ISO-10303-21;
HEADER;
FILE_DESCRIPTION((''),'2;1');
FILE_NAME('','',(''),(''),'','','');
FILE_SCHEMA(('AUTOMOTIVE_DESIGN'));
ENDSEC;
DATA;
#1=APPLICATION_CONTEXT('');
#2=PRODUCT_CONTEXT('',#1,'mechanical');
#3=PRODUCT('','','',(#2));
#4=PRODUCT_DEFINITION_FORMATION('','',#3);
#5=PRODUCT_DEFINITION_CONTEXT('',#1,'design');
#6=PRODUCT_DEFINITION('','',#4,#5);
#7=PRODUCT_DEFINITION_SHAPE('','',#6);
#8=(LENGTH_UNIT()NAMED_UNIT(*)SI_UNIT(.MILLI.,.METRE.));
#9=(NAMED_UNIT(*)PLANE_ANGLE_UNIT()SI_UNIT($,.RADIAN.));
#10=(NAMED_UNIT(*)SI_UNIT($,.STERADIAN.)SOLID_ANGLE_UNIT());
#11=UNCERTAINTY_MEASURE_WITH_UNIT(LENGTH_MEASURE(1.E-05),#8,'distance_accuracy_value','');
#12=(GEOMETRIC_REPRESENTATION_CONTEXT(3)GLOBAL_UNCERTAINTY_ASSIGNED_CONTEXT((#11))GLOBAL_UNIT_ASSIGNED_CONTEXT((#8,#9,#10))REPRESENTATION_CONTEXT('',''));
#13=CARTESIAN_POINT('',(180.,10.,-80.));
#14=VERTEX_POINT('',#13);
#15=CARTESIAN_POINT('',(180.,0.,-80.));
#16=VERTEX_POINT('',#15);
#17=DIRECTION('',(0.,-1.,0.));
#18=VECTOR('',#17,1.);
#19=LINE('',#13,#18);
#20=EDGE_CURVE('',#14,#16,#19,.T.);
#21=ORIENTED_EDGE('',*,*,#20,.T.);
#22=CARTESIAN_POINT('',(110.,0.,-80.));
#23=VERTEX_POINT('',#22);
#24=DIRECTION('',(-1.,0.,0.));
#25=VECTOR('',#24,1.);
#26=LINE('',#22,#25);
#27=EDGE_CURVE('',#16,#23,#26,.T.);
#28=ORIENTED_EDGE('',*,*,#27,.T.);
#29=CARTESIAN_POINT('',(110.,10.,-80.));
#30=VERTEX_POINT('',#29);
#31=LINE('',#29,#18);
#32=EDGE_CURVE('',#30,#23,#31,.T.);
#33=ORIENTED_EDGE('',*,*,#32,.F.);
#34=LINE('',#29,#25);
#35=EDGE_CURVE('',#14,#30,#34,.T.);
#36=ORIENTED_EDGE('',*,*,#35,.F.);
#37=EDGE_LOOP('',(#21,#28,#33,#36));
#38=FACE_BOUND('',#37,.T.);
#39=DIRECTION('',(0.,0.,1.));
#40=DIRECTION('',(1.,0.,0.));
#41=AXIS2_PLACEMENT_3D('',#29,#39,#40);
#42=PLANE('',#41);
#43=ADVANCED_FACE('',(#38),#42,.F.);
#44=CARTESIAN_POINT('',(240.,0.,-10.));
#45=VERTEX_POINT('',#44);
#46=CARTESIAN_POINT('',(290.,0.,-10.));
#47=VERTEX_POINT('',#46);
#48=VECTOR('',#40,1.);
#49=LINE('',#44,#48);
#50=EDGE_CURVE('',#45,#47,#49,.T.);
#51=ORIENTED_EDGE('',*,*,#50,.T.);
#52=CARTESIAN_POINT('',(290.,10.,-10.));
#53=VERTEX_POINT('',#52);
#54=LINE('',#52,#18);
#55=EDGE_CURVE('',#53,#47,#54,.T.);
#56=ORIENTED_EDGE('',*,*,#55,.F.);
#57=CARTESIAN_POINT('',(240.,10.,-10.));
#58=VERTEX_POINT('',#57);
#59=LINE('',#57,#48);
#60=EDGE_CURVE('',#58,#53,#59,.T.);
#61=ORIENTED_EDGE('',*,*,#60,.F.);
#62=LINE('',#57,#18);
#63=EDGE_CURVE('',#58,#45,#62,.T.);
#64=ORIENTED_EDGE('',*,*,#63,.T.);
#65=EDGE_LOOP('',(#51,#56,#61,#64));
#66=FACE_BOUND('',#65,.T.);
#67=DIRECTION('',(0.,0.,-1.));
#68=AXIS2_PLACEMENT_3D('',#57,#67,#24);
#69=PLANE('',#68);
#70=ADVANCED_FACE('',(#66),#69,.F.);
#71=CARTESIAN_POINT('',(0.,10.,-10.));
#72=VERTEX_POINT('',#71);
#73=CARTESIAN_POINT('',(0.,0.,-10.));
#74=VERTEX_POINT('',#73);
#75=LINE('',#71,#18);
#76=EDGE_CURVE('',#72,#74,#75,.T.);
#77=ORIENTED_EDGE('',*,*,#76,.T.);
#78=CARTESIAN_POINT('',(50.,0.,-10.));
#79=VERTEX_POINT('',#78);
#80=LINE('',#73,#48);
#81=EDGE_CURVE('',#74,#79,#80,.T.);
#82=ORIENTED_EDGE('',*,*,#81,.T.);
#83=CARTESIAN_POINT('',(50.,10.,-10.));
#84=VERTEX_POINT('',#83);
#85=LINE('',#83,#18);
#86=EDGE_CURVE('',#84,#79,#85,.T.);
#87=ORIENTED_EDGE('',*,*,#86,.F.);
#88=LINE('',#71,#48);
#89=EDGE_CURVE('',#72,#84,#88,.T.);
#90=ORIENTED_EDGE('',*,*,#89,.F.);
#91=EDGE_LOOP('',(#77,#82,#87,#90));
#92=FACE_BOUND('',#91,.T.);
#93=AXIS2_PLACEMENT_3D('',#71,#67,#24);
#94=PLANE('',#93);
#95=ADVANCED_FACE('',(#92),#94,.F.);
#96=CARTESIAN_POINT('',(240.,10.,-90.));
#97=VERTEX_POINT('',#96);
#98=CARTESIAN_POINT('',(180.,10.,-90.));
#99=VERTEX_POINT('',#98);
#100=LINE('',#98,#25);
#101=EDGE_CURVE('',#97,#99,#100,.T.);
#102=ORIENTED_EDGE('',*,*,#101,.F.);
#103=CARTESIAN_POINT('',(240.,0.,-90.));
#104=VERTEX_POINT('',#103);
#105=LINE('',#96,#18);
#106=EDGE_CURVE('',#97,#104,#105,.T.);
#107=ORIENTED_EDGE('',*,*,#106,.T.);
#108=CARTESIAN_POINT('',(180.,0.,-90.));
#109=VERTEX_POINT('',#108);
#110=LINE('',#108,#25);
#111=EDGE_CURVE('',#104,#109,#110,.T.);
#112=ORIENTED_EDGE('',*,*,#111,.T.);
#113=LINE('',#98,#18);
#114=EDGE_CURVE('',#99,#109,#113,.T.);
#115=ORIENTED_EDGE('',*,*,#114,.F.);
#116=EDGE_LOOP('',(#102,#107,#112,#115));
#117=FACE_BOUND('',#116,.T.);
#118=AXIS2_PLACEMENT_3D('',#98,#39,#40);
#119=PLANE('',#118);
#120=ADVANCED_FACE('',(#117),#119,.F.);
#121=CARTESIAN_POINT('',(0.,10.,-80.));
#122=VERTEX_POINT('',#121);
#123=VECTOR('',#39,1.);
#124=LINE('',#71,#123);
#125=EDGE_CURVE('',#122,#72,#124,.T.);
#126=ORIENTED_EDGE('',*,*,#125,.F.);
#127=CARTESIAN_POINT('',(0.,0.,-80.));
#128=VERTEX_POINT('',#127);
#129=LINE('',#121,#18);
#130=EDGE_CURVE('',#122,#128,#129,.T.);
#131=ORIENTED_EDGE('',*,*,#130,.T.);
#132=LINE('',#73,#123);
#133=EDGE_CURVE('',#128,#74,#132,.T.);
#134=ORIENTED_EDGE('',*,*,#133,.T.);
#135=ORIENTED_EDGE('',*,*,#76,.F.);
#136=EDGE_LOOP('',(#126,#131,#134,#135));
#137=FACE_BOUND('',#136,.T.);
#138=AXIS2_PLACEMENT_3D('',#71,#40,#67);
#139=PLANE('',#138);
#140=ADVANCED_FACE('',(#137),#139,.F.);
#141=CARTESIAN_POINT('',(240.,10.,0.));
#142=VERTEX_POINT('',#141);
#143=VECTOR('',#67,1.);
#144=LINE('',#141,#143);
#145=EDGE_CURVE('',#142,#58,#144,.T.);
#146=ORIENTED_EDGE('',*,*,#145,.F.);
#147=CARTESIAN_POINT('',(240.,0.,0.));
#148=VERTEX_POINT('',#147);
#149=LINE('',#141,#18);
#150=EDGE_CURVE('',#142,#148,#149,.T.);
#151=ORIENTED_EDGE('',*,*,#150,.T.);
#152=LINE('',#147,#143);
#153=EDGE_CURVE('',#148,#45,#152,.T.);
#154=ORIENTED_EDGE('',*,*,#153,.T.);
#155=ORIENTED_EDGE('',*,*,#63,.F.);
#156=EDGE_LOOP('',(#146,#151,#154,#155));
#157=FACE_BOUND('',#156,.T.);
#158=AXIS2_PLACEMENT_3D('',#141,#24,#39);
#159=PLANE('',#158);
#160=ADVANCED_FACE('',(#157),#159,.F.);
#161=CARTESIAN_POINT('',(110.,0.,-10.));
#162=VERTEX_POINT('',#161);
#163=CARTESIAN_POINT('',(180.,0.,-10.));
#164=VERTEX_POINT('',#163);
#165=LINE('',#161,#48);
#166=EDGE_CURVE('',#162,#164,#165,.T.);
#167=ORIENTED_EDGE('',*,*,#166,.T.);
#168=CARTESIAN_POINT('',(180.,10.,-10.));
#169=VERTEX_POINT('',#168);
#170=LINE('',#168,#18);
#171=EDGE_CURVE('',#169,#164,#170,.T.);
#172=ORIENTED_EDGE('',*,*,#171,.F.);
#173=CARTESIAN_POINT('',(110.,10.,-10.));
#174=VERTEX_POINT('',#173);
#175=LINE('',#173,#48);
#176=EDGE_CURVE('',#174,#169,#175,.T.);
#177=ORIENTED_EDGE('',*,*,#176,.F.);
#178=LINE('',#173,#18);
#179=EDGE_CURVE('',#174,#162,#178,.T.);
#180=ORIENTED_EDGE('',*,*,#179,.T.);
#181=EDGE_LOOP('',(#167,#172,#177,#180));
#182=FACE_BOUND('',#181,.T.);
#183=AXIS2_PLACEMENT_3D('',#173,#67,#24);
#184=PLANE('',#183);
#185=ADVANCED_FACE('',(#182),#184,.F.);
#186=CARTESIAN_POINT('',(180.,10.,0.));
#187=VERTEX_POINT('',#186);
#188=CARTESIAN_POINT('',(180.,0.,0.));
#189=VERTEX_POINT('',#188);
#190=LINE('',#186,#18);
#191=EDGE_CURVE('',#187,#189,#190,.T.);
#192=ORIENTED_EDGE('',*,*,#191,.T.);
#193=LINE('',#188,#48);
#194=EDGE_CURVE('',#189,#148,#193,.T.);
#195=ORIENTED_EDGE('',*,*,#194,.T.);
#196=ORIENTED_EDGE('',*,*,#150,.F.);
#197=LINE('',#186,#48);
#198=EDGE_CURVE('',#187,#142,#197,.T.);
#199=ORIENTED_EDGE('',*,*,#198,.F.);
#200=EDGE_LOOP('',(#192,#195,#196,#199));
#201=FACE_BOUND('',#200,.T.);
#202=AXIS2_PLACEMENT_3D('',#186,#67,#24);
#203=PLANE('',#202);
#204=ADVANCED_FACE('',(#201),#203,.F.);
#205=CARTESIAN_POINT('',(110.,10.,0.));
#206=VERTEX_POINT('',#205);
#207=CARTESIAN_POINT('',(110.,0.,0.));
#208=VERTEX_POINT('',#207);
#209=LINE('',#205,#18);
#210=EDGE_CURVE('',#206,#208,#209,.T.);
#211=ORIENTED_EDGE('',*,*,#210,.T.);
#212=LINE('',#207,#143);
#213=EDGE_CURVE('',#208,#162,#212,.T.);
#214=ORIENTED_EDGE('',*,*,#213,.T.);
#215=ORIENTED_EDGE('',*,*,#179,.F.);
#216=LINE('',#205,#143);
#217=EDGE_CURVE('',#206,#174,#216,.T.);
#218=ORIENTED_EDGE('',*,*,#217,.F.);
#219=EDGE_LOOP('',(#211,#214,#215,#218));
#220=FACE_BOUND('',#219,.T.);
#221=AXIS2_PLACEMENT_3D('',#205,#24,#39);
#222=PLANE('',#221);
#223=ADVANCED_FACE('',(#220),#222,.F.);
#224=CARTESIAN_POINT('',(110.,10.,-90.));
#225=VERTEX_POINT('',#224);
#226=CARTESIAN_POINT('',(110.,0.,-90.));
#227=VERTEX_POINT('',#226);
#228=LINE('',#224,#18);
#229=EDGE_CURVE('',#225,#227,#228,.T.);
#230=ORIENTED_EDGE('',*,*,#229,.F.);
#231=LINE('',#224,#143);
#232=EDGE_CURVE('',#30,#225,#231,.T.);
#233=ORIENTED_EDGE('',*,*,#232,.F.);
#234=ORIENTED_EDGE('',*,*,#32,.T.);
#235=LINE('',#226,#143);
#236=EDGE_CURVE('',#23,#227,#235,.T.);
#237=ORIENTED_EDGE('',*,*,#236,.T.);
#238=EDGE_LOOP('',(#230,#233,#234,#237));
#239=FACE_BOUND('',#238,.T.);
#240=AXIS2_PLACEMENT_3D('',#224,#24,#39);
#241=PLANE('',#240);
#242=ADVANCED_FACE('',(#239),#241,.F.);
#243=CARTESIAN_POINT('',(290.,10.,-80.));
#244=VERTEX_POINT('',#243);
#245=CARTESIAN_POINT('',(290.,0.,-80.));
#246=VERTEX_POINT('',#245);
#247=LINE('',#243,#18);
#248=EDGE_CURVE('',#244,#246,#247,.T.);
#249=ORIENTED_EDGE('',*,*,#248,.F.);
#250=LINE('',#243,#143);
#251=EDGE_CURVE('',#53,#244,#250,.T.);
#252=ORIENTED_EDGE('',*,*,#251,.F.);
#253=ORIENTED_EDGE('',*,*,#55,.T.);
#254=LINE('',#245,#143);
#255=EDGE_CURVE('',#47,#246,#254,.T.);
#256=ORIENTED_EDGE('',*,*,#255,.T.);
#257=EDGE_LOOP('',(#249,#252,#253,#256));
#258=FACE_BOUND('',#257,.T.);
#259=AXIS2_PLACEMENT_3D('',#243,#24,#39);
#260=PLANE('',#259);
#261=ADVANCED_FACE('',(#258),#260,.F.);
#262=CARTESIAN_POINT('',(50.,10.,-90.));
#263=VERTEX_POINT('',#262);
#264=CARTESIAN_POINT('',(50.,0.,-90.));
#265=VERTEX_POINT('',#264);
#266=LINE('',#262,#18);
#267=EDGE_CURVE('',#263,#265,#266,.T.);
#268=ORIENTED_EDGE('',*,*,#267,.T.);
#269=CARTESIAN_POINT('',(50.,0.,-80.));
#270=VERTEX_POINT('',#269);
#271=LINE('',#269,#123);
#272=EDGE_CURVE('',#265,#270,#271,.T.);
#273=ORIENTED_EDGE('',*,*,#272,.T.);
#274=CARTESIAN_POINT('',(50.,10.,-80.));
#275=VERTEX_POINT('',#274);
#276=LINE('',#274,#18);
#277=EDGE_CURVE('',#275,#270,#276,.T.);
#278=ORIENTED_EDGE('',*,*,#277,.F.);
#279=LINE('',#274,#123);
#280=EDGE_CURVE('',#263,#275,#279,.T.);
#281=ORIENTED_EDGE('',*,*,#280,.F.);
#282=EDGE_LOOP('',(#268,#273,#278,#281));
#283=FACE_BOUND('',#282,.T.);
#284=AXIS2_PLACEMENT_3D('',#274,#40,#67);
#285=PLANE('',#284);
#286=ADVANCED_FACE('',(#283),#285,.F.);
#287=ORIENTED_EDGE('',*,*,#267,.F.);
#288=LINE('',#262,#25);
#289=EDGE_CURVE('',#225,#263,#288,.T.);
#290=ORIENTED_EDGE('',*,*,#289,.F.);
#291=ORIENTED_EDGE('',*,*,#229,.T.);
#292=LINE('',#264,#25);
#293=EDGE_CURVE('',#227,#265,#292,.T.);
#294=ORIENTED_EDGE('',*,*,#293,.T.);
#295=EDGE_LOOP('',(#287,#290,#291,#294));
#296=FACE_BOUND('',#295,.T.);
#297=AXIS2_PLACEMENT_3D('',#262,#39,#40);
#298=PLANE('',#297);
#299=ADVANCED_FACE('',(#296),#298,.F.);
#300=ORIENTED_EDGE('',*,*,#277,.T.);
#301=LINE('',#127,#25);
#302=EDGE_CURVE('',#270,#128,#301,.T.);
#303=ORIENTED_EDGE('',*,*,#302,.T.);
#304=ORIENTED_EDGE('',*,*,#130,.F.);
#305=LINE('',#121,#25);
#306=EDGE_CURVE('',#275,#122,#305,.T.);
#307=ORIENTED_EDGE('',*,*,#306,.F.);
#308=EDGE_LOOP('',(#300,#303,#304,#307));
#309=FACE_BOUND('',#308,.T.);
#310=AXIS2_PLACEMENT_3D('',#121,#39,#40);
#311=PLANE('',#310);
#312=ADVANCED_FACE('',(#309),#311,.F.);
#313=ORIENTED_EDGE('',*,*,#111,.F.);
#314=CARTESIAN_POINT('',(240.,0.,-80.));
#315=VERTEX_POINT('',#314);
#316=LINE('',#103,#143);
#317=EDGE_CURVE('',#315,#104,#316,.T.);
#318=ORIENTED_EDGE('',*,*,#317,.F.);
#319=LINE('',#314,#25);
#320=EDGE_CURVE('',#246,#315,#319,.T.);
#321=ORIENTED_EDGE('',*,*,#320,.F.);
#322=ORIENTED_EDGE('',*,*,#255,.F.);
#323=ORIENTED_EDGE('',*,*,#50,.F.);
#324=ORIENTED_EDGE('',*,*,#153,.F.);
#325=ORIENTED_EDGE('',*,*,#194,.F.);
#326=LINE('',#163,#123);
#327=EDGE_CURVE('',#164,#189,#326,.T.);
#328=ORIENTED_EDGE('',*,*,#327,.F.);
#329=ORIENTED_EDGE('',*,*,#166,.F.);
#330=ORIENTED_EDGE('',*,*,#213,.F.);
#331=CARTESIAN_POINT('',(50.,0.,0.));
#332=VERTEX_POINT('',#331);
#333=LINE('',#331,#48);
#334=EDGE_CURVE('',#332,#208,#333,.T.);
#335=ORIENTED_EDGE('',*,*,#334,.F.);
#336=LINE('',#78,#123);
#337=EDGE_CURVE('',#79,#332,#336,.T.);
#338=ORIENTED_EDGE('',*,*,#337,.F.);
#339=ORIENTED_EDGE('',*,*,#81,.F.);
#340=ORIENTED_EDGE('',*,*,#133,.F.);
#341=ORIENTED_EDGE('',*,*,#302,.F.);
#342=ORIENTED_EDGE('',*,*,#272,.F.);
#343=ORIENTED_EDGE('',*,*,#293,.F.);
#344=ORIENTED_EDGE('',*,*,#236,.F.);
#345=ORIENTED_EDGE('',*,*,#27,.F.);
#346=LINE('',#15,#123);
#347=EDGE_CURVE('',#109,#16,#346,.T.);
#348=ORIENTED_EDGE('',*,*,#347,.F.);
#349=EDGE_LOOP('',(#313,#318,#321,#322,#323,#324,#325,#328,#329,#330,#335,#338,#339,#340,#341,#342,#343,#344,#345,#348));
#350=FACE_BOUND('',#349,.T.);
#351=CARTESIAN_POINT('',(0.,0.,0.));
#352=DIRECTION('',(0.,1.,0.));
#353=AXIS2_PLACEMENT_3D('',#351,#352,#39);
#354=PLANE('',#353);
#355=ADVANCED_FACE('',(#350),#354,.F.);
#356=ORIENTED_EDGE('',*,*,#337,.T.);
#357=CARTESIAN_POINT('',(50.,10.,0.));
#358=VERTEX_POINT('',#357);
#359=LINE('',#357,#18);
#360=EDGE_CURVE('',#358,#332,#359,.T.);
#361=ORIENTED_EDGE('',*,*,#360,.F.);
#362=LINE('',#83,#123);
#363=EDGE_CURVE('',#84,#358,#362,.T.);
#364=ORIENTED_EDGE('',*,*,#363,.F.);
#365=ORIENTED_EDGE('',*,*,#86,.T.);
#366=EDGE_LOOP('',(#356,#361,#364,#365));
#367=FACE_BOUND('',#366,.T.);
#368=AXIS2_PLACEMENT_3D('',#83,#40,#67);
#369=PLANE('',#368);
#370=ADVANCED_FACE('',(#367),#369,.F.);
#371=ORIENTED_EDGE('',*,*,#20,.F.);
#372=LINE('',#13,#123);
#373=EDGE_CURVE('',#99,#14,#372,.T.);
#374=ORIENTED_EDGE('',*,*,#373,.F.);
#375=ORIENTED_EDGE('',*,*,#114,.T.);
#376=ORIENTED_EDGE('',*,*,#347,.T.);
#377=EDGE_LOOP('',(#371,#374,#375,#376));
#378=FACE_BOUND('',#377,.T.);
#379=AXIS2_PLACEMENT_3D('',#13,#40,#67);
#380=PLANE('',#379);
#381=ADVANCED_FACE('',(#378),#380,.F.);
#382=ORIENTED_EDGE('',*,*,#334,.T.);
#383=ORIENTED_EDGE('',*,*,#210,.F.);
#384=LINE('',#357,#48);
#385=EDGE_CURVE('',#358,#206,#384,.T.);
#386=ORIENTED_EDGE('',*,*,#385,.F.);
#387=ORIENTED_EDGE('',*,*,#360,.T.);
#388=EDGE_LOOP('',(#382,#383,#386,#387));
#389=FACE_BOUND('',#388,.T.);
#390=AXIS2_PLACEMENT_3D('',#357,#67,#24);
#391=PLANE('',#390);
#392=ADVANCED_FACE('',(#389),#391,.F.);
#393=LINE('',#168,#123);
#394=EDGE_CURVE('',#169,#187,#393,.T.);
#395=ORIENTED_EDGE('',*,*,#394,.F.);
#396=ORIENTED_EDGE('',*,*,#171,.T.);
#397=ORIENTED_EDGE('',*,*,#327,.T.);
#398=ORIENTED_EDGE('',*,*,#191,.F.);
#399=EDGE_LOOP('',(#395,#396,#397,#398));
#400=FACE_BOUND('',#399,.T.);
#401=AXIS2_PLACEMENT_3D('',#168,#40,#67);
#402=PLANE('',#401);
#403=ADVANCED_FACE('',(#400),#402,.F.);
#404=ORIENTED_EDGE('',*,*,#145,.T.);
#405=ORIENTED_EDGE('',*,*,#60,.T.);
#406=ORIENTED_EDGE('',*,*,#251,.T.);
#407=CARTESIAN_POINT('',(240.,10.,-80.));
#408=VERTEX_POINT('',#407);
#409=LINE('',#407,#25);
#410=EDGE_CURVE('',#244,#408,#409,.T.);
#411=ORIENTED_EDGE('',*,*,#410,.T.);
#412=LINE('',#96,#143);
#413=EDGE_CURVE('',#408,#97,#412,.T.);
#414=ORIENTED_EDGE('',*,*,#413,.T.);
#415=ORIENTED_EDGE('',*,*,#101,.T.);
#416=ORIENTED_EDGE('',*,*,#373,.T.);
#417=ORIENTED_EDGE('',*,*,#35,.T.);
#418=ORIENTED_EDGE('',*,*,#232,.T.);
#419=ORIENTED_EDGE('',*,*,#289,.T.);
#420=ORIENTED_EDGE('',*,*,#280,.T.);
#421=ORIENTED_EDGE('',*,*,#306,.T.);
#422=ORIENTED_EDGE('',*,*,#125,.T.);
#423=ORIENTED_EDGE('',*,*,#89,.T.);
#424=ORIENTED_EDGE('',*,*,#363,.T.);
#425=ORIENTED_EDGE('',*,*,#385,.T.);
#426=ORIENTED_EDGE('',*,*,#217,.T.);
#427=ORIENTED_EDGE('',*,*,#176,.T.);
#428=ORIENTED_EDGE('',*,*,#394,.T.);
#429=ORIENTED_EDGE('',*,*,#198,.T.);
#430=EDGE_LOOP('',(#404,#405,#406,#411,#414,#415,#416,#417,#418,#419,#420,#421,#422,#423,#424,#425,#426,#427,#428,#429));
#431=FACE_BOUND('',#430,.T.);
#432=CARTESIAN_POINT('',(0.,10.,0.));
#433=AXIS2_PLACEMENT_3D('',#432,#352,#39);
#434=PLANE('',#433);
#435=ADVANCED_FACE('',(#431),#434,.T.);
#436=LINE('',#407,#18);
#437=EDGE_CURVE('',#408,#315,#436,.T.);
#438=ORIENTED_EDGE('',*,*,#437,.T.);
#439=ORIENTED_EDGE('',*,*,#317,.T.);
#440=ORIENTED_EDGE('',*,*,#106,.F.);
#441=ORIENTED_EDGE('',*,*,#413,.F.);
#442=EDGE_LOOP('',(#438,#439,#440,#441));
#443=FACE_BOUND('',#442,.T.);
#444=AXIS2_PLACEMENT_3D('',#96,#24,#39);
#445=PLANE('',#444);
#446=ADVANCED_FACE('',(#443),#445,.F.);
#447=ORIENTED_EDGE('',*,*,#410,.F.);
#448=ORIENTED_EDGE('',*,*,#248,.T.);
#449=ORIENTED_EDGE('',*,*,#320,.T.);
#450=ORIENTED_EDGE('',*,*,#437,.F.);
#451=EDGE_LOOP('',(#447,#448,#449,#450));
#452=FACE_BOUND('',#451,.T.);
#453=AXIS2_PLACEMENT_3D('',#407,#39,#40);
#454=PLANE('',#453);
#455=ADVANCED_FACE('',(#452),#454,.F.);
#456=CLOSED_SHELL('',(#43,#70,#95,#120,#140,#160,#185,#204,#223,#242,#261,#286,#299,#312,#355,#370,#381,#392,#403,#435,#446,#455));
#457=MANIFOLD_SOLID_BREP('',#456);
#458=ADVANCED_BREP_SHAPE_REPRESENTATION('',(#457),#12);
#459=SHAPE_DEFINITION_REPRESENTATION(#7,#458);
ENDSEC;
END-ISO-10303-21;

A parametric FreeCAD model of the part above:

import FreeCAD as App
import Part
import Sketcher

V = App.Vector
Q = App.Units.Quantity

doc = App.newDocument("Part")
body = doc.addObject("PartDesign::Body", "Body")

# Sketch on XZ plane
sketch1 = body.newObject("Sketcher::SketchObject", "Sketch")
sketch1.AttachmentSupport = (doc.getObject("XZ_Plane"), [""])
sketch1.MapMode = "FlatFace"
sketch1.addGeometry(Part.LineSegment(V(0, -10, 0), V(50, -10, 0)), False)
sketch1.addGeometry(Part.LineSegment(V(50, -10, 0), V(50, 0, 0)), False)
sketch1.addGeometry(Part.LineSegment(V(50, 0, 0), V(110, 0, 0)), False)
sketch1.addGeometry(Part.LineSegment(V(110, 0, 0), V(110, -10, 0)), False)
sketch1.addGeometry(Part.LineSegment(V(110, -10, 0), V(180, -10, 0)), False)
sketch1.addGeometry(Part.LineSegment(V(180, -10, 0), V(180, 0, 0)), False)
sketch1.addGeometry(Part.LineSegment(V(180, 0, 0), V(240, 0, 0)), False)
sketch1.addGeometry(Part.LineSegment(V(240, 0, 0), V(240, -10, 0)), False)
sketch1.addGeometry(Part.LineSegment(V(240, -10, 0), V(290, -10, 0)), False)
sketch1.addGeometry(Part.LineSegment(V(290, -10, 0), V(290, -80, 0)), False)
sketch1.addGeometry(Part.LineSegment(V(290, -80, 0), V(240, -80, 0)), False)
sketch1.addGeometry(Part.LineSegment(V(240, -80, 0), V(240, -90, 0)), False)
sketch1.addGeometry(Part.LineSegment(V(240, -90, 0), V(180, -90, 0)), False)
sketch1.addGeometry(Part.LineSegment(V(180, -90, 0), V(180, -80, 0)), False)
sketch1.addGeometry(Part.LineSegment(V(180, -80, 0), V(110, -80, 0)), False)
sketch1.addGeometry(Part.LineSegment(V(110, -80, 0), V(110, -90, 0)), False)
sketch1.addGeometry(Part.LineSegment(V(110, -90, 0), V(50, -90, 0)), False)
sketch1.addGeometry(Part.LineSegment(V(50, -90, 0), V(50, -80, 0)), False)
sketch1.addGeometry(Part.LineSegment(V(50, -80, 0), V(0, -80, 0)), False)
sketch1.addGeometry(Part.LineSegment(V(0, -80, 0), V(0, -10, 0)), False)
sketch1.addConstraint(Sketcher.Constraint("Coincident", 0, 2, 1, 1))
sketch1.addConstraint(Sketcher.Constraint("Coincident", 1, 2, 2, 1))
sketch1.addConstraint(Sketcher.Constraint("Coincident", 2, 2, 3, 1))
sketch1.addConstraint(Sketcher.Constraint("Coincident", 3, 2, 4, 1))
sketch1.addConstraint(Sketcher.Constraint("Coincident", 4, 2, 5, 1))
sketch1.addConstraint(Sketcher.Constraint("Coincident", 5, 2, 6, 1))
sketch1.addConstraint(Sketcher.Constraint("Coincident", 6, 2, 7, 1))
sketch1.addConstraint(Sketcher.Constraint("Coincident", 7, 2, 8, 1))
sketch1.addConstraint(Sketcher.Constraint("Coincident", 8, 2, 9, 1))
sketch1.addConstraint(Sketcher.Constraint("Coincident", 9, 2, 10, 1))
sketch1.addConstraint(Sketcher.Constraint("Coincident", 10, 2, 11, 1))
sketch1.addConstraint(Sketcher.Constraint("Coincident", 11, 2, 12, 1))
sketch1.addConstraint(Sketcher.Constraint("Coincident", 12, 2, 13, 1))
sketch1.addConstraint(Sketcher.Constraint("Coincident", 13, 2, 14, 1))
sketch1.addConstraint(Sketcher.Constraint("Coincident", 14, 2, 15, 1))
sketch1.addConstraint(Sketcher.Constraint("Coincident", 15, 2, 16, 1))
sketch1.addConstraint(Sketcher.Constraint("Coincident", 16, 2, 17, 1))
sketch1.addConstraint(Sketcher.Constraint("Coincident", 17, 2, 18, 1))
sketch1.addConstraint(Sketcher.Constraint("Coincident", 18, 2, 19, 1))
sketch1.addConstraint(Sketcher.Constraint("Coincident", 19, 2, 0, 1))
sketch1.addConstraint(Sketcher.Constraint("Horizontal", 0))
sketch1.addConstraint(Sketcher.Constraint("Vertical", 1))
sketch1.addConstraint(Sketcher.Constraint("Horizontal", 2))
sketch1.addConstraint(Sketcher.Constraint("Vertical", 3))
sketch1.addConstraint(Sketcher.Constraint("Horizontal", 4))
sketch1.addConstraint(Sketcher.Constraint("Vertical", 5))
sketch1.addConstraint(Sketcher.Constraint("Horizontal", 6))
sketch1.addConstraint(Sketcher.Constraint("Vertical", 7))
sketch1.addConstraint(Sketcher.Constraint("Horizontal", 8))
sketch1.addConstraint(Sketcher.Constraint("Vertical", 9))
sketch1.addConstraint(Sketcher.Constraint("Horizontal", 10))
sketch1.addConstraint(Sketcher.Constraint("Vertical", 11))
sketch1.addConstraint(Sketcher.Constraint("Horizontal", 12))
sketch1.addConstraint(Sketcher.Constraint("Vertical", 13))
sketch1.addConstraint(Sketcher.Constraint("Horizontal", 14))
sketch1.addConstraint(Sketcher.Constraint("Vertical", 15))
sketch1.addConstraint(Sketcher.Constraint("Horizontal", 16))
sketch1.addConstraint(Sketcher.Constraint("Vertical", 17))
sketch1.addConstraint(Sketcher.Constraint("Horizontal", 18))
sketch1.addConstraint(Sketcher.Constraint("Vertical", 19))
sketch1.addConstraint(Sketcher.Constraint("PointOnObject", 1, 2, -1))
sketch1.addConstraint(Sketcher.Constraint("PointOnObject", 5, 2, -1))
sketch1.addConstraint(Sketcher.Constraint("PointOnObject", 18, 2, -2))
sketch1.addConstraint(Sketcher.Constraint("Horizontal", 0, 2, 3, 2))
sketch1.addConstraint(Sketcher.Constraint("Horizontal", 4, 2, 7, 2))
sketch1.addConstraint(Sketcher.Constraint("Horizontal", 10, 2, 13, 2))
sketch1.addConstraint(Sketcher.Constraint("Horizontal", 12, 2, 15, 2))
sketch1.addConstraint(Sketcher.Constraint("Horizontal", 14, 2, 17, 2))
sketch1.addConstraint(Sketcher.Constraint("Vertical", 7, 2, 10, 2))
sketch1.addConstraint(Sketcher.Constraint("Vertical", 5, 2, 12, 2))
sketch1.addConstraint(Sketcher.Constraint("Vertical", 3, 2, 14, 2))
sketch1.addConstraint(Sketcher.Constraint("Vertical", 1, 2, 16, 2))
sketch1.addConstraint(Sketcher.Constraint("Equal", 2, 6))
sketch1.addConstraint(Sketcher.Constraint("Equal", 0, 8))
sketch1.addConstraint(Sketcher.Constraint("Equal", 14, 9))
sketch1.addConstraint(Sketcher.Constraint("Equal", 7, 11))
sketch1.addConstraint(Sketcher.Constraint("DistanceX", 0, 1, 0, 2, Q("50 mm")))
sketch1.addConstraint(Sketcher.Constraint("DistanceX", 2, 1, 2, 2, Q("60 mm")))
sketch1.addConstraint(Sketcher.Constraint("DistanceX", 4, 1, 4, 2, Q("70 mm")))
sketch1.addConstraint(Sketcher.Constraint("DistanceY", 1, 1, 1, 2, Q("10 mm")))
pad1 = body.newObject("PartDesign::Pad", "Pad")
pad1.Profile = sketch1
pad1.Length = 10
pad1.Reversed = True

doc.recompute()
